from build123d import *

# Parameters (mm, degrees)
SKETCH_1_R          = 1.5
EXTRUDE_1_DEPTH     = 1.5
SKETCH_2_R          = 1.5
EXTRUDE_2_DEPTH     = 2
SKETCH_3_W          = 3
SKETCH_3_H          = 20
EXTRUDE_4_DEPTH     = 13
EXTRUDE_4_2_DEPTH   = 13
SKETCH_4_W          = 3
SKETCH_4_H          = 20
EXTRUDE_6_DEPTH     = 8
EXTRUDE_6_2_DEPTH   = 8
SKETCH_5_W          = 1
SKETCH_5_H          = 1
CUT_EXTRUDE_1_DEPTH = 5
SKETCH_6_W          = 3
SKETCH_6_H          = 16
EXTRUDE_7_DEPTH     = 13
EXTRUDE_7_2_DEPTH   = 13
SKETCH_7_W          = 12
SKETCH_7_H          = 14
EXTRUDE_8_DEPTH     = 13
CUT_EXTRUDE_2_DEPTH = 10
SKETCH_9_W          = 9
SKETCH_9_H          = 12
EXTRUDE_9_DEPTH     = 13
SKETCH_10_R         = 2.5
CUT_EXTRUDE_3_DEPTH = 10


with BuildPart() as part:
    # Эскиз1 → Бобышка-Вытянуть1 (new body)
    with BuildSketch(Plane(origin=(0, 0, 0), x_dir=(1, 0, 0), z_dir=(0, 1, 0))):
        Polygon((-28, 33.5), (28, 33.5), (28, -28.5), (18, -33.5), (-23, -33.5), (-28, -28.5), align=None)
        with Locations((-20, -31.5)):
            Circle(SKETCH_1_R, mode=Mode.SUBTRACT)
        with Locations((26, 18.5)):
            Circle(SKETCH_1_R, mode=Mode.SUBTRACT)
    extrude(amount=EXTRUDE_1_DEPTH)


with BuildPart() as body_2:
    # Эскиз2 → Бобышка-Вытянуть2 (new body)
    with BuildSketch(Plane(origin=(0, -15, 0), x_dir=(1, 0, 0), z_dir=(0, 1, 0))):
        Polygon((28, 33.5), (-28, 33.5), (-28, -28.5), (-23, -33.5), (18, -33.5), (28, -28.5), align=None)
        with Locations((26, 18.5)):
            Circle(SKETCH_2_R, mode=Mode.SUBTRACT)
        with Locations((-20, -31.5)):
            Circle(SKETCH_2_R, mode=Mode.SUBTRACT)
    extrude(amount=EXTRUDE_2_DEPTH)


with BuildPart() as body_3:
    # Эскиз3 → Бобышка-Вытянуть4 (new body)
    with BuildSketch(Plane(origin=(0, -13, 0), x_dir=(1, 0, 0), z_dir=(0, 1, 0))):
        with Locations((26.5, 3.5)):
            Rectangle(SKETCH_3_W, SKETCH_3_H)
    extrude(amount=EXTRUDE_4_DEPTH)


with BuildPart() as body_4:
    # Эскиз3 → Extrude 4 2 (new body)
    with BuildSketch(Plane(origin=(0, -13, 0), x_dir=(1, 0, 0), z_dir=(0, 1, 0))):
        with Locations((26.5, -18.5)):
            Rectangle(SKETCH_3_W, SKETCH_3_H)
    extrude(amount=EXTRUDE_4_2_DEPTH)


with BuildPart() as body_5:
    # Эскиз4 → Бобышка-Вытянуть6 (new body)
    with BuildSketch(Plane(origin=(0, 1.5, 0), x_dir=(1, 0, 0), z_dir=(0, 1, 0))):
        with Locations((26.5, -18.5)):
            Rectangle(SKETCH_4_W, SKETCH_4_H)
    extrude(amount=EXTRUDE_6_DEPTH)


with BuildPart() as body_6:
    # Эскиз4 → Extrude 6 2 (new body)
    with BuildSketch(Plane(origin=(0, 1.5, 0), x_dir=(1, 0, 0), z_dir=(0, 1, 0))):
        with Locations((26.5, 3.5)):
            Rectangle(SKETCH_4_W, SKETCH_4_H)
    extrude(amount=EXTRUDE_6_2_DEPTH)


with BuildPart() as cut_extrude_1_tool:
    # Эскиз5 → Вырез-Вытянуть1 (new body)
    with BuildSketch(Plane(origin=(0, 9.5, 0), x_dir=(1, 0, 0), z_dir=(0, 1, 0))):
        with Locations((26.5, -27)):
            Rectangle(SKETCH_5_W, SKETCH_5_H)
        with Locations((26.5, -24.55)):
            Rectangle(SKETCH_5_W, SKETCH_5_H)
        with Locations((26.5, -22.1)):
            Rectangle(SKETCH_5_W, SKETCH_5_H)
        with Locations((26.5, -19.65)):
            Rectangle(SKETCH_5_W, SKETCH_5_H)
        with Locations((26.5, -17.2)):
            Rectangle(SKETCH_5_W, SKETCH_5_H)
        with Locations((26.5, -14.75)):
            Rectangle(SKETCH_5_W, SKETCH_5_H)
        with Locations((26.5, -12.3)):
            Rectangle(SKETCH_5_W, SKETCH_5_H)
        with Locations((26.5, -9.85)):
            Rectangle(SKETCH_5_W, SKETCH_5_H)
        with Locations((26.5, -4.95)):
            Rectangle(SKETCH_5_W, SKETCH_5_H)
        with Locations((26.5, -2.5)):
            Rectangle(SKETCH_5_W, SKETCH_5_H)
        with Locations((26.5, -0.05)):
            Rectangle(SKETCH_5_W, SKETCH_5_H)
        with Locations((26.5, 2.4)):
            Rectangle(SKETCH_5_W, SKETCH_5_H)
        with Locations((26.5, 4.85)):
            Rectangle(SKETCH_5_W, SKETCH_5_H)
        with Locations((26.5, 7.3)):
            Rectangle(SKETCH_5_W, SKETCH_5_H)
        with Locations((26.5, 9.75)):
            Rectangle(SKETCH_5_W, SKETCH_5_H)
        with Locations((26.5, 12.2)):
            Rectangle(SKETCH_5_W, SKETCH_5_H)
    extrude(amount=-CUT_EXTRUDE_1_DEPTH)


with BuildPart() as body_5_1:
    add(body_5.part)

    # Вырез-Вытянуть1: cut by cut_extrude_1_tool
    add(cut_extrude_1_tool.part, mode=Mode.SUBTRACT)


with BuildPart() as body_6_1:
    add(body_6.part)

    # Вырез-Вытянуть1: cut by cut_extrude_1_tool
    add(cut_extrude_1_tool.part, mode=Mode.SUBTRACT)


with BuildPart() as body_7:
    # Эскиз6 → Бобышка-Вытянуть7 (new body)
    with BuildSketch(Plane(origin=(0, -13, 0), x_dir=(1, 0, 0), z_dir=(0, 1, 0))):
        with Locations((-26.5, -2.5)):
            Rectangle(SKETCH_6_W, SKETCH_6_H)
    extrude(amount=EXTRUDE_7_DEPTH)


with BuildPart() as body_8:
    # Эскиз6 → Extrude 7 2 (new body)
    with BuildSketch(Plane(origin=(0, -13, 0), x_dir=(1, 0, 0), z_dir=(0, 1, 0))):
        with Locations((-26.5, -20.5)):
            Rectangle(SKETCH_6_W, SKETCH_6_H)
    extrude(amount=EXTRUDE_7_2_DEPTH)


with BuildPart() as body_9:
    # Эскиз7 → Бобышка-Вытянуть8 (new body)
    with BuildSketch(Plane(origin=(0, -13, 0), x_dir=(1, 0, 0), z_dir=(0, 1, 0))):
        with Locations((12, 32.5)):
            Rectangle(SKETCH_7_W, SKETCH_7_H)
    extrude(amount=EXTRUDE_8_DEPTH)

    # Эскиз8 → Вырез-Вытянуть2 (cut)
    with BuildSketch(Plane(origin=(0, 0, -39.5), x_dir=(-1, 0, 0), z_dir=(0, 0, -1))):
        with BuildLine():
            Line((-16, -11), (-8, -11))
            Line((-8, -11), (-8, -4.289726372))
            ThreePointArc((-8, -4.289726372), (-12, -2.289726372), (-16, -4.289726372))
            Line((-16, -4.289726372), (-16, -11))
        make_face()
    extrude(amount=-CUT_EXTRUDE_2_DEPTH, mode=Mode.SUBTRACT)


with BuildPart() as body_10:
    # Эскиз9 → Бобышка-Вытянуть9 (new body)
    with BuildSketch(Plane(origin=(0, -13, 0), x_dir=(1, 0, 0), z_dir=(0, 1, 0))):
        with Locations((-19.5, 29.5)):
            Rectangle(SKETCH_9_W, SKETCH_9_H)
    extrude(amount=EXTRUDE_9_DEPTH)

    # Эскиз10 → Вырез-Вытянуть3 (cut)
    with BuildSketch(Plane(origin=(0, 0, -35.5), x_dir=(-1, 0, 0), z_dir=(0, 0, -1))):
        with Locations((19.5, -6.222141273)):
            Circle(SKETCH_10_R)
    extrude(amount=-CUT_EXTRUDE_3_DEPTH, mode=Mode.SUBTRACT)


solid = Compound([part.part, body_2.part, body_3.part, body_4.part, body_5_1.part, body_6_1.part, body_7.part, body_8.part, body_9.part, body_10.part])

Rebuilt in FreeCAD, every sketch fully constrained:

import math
import FreeCAD as App
import Part
import Sketcher
from FreeCAD import Vector
Q = App.Units.Quantity


def add_polygon(sketch, points):
    """Adds a closed chain of lines whose ends are joined by coincident constraints."""
    first, n = sketch.GeometryCount, len(points)
    for a, b in zip(points, points[1:] + points[:1]):
        sketch.addGeometry(Part.LineSegment(App.Vector(*a, 0), App.Vector(*b, 0)), False)
    for i in range(n):
        sketch.addConstraint(Sketcher.Constraint("Coincident", first + i, 2, first + (i + 1) % n, 1))

doc = App.newDocument("Part")
body = doc.addObject("PartDesign::Body", "Body")

sketch1 = body.newObject("Sketcher::SketchObject", "Sketch")
sketch1.AttachmentSupport = (doc.getObject("XZ_Plane"), [""])
sketch1.MapMode = "FlatFace"
add_polygon(sketch1, [(28, -33.5), (-28, -33.5), (-28, 28.5), (-23, 33.5), (18, 33.5), (28, 28.5)])
sketch1.addGeometry(Part.Circle(Vector(-20, 31.5, 0), Vector(0, 0, 1), 1.5), False)
sketch1.addGeometry(Part.Circle(Vector(26, -18.5, 0), Vector(0, 0, 1), 1.5), False)
sketch1.addConstraint([
    Sketcher.Constraint("Horizontal", 0),
    Sketcher.Constraint("Vertical", 1),
    Sketcher.Constraint("Horizontal", 3),
    Sketcher.Constraint("Vertical", 5),
    Sketcher.Constraint("Equal", 6, 7),
    Sketcher.Constraint("Symmetric", 1, 2, 4, 2, -2),
    Sketcher.Constraint("Diameter", 6, Q("3 mm")),
    Sketcher.Constraint("DistanceX", 0, 2, 0, 1, Q("56 mm")),
    Sketcher.Constraint("DistanceX", 3, 1, 3, 2, Q("41 mm")),
    Sketcher.Constraint("DistanceY", 1, 1, 1, 2, Q("62 mm")),
    Sketcher.Constraint("Angle", 2, Q("45 deg")),
    Sketcher.Constraint("DistanceX", 6, 3, -1, 1, Q("20 mm")),
    Sketcher.Constraint("DistanceX", -1, 1, 7, 3, Q("26 mm")),
    Sketcher.Constraint("DistanceX", 2, 2, -1, 1, Q("23 mm")),
    Sketcher.Constraint("DistanceY", 7, 3, 6, 3, Q("50 mm")),
    Sketcher.Constraint("DistanceY", 0, 2, 7, 3, Q("15 mm")),
    Sketcher.Constraint("DistanceY", -1, 1, 6, 3, Q("31.5 mm")),
])
pad1 = body.newObject("PartDesign::Pad", "Pad")
pad1.Profile = sketch1
pad1.Length = 1.5
pad1.Reversed = True
body2 = doc.addObject("PartDesign::Body", "Body001")

sketch2 = body2.newObject("Sketcher::SketchObject", "Sketch001")
sketch2.AttachmentSupport = (doc.getObject("XZ_Plane001"), [""])
sketch2.MapMode = "FlatFace"
sketch2.AttachmentOffset = App.Placement(Vector(0, 0, 15), App.Rotation())
add_polygon(sketch2, [(28, -33.5), (-28, -33.5), (-28, 28.5), (-23, 33.5), (18, 33.5), (28, 28.5)])
sketch2.addGeometry(Part.Circle(Vector(-20, 31.5, 0), Vector(0, 0, 1), 1.5), False)
sketch2.addGeometry(Part.Circle(Vector(26, -18.5, 0), Vector(0, 0, 1), 1.5), False)
sketch2.addConstraint([
    Sketcher.Constraint("Horizontal", 0),
    Sketcher.Constraint("Vertical", 1),
    Sketcher.Constraint("Horizontal", 3),
    Sketcher.Constraint("Vertical", 5),
    Sketcher.Constraint("Equal", 6, 7),
    Sketcher.Constraint("Symmetric", 1, 2, 4, 2, -2),
    Sketcher.Constraint("Diameter", 6, Q("3 mm")),
    Sketcher.Constraint("DistanceX", 0, 2, 0, 1, Q("56 mm")),
    Sketcher.Constraint("DistanceX", 3, 1, 3, 2, Q("41 mm")),
    Sketcher.Constraint("DistanceY", 1, 1, 1, 2, Q("62 mm")),
    Sketcher.Constraint("Angle", 2, Q("45 deg")),
    Sketcher.Constraint("DistanceX", 6, 3, -1, 1, Q("20 mm")),
    Sketcher.Constraint("DistanceX", -1, 1, 7, 3, Q("26 mm")),
    Sketcher.Constraint("DistanceX", 2, 2, -1, 1, Q("23 mm")),
    Sketcher.Constraint("DistanceY", 7, 3, 6, 3, Q("50 mm")),
    Sketcher.Constraint("DistanceY", 0, 2, 7, 3, Q("15 mm")),
    Sketcher.Constraint("DistanceY", -1, 1, 6, 3, Q("31.5 mm")),
])
pad2 = body2.newObject("PartDesign::Pad", "Pad001")
pad2.Profile = sketch2
pad2.Length = 2
pad2.Reversed = True
body3 = doc.addObject("PartDesign::Body", "Body002")

sketch3 = body3.newObject("Sketcher::SketchObject", "Sketch002")
sketch3.AttachmentSupport = (doc.getObject("XZ_Plane002"), [""])
sketch3.MapMode = "FlatFace"
sketch3.AttachmentOffset = App.Placement(Vector(0, 0, 13), App.Rotation())
add_polygon(sketch3, [(25, -13.5), (25, 6.5), (28, 6.5), (28, -13.5)])
sketch3.addConstraint([
    Sketcher.Constraint("Vertical", 0),
    Sketcher.Constraint("Horizontal", 1),
    Sketcher.Constraint("Vertical", 2),
    Sketcher.Constraint("Horizontal", 3),
    Sketcher.Constraint("DistanceX", 1, 1, 1, 2, Q("3 mm")),
    Sketcher.Constraint("DistanceY", 0, 1, 0, 2, Q("20 mm")),
    Sketcher.Constraint("DistanceX", -1, 1, 0, 2, Q("25 mm")),
    Sketcher.Constraint("DistanceY", -1, 1, 0, 2, Q("6.5 mm")),
])
pad3 = body3.newObject("PartDesign::Pad", "Pad002")
pad3.Profile = sketch3
pad3.Length = 13
pad3.Reversed = True
body4 = doc.addObject("PartDesign::Body", "Body003")

sketch4 = body4.newObject("Sketcher::SketchObject", "Sketch003")
sketch4.AttachmentSupport = (doc.getObject("XZ_Plane003"), [""])
sketch4.MapMode = "FlatFace"
sketch4.AttachmentOffset = App.Placement(Vector(0, 0, 13), App.Rotation())
add_polygon(sketch4, [(25, 8.5), (25, 28.5), (28, 28.5), (28, 8.5)])
sketch4.addConstraint([
    Sketcher.Constraint("Vertical", 0),
    Sketcher.Constraint("Horizontal", 1),
    Sketcher.Constraint("Vertical", 2),
    Sketcher.Constraint("Horizontal", 3),
    Sketcher.Constraint("DistanceX", 1, 1, 1, 2, Q("3 mm")),
    Sketcher.Constraint("DistanceY", 0, 1, 0, 2, Q("20 mm")),
    Sketcher.Constraint("DistanceX", -1, 1, 0, 2, Q("25 mm")),
    Sketcher.Constraint("DistanceY", -1, 1, 0, 2, Q("28.5 mm")),
])
pad4 = body4.newObject("PartDesign::Pad", "Pad003")
pad4.Profile = sketch4
pad4.Length = 13
pad4.Reversed = True
body5 = doc.addObject("PartDesign::Body", "Body004")

sketch5 = body5.newObject("Sketcher::SketchObject", "Sketch004")
sketch5.AttachmentSupport = (doc.getObject("XZ_Plane004"), [""])
sketch5.MapMode = "FlatFace"
sketch5.AttachmentOffset = App.Placement(Vector(0, 0, -1.5), App.Rotation())
add_polygon(sketch5, [(25, 8.5), (25, 28.5), (28, 28.5), (28, 8.5)])
sketch5.addConstraint([
    Sketcher.Constraint("Vertical", 0),
    Sketcher.Constraint("Horizontal", 1),
    Sketcher.Constraint("Vertical", 2),
    Sketcher.Constraint("Horizontal", 3),
    Sketcher.Constraint("DistanceX", 1, 1, 1, 2, Q("3 mm")),
    Sketcher.Constraint("DistanceY", 0, 1, 0, 2, Q("20 mm")),
    Sketcher.Constraint("DistanceX", -1, 1, 0, 2, Q("25 mm")),
    Sketcher.Constraint("DistanceY", -1, 1, 0, 2, Q("28.5 mm")),
])
pad5 = body5.newObject("PartDesign::Pad", "Pad004")
pad5.Profile = sketch5
pad5.Length = 8
pad5.Reversed = True
body6 = doc.addObject("PartDesign::Body", "Body005")

sketch6 = body6.newObject("Sketcher::SketchObject", "Sketch005")
sketch6.AttachmentSupport = (doc.getObject("XZ_Plane005"), [""])
sketch6.MapMode = "FlatFace"
sketch6.AttachmentOffset = App.Placement(Vector(0, 0, -1.5), App.Rotation())
add_polygon(sketch6, [(25, -13.5), (25, 6.5), (28, 6.5), (28, -13.5)])
sketch6.addConstraint([
    Sketcher.Constraint("Vertical", 0),
    Sketcher.Constraint("Horizontal", 1),
    Sketcher.Constraint("Vertical", 2),
    Sketcher.Constraint("Horizontal", 3),
    Sketcher.Constraint("DistanceX", 1, 1, 1, 2, Q("3 mm")),
    Sketcher.Constraint("DistanceY", 0, 1, 0, 2, Q("20 mm")),
    Sketcher.Constraint("DistanceX", -1, 1, 0, 2, Q("25 mm")),
    Sketcher.Constraint("DistanceY", -1, 1, 0, 2, Q("6.5 mm")),
])
pad6 = body6.newObject("PartDesign::Pad", "Pad005")
pad6.Profile = sketch6
pad6.Length = 8
pad6.Reversed = True
body7 = doc.addObject("PartDesign::Body", "Body006")
body7.AllowCompound = True

sketch7 = body7.newObject("Sketcher::SketchObject", "Sketch006")
sketch7.AttachmentSupport = (doc.getObject("XZ_Plane006"), [""])
sketch7.MapMode = "FlatFace"
sketch7.AttachmentOffset = App.Placement(Vector(0, 0, -9.5), App.Rotation())
add_polygon(sketch7, [(26, 26.5), (26, 27.5), (27, 27.5), (27, 26.5)])
add_polygon(sketch7, [(26, 24.05), (26, 25.05), (27, 25.05), (27, 24.05)])
add_polygon(sketch7, [(26, 21.6), (26, 22.6), (27, 22.6), (27, 21.6)])
add_polygon(sketch7, [(26, 19.15), (26, 20.15), (27, 20.15), (27, 19.15)])
add_polygon(sketch7, [(26, 16.7), (26, 17.7), (27, 17.7), (27, 16.7)])
add_polygon(sketch7, [(26, 14.25), (26, 15.25), (27, 15.25), (27, 14.25)])
add_polygon(sketch7, [(26, 11.8), (26, 12.8), (27, 12.8), (27, 11.8)])
add_polygon(sketch7, [(26, 9.35), (26, 10.35), (27, 10.35), (27, 9.35)])
add_polygon(sketch7, [(26, 4.45), (26, 5.45), (27, 5.45), (27, 4.45)])
add_polygon(sketch7, [(26, 2), (26, 3), (27, 3), (27, 2)])
add_polygon(sketch7, [(26, -0.45), (26, 0.55), (27, 0.55), (27, -0.45)])
add_polygon(sketch7, [(26, -2.9), (26, -1.9), (27, -1.9), (27, -2.9)])
add_polygon(sketch7, [(26, -5.35), (26, -4.35), (27, -4.35), (27, -5.35)])
add_polygon(sketch7, [(26, -7.8), (26, -6.8), (27, -6.8), (27, -7.8)])
add_polygon(sketch7, [(26, -10.25), (26, -9.25), (27, -9.25), (27, -10.25)])
add_polygon(sketch7, [(26, -12.7), (26, -11.7), (27, -11.7), (27, -12.7)])
sketch7.addConstraint([
    Sketcher.Constraint("Vertical", 0),
    Sketcher.Constraint("Horizontal", 1),
    Sketcher.Constraint("Vertical", 2),
    Sketcher.Constraint("Horizontal", 3),
    Sketcher.Constraint("Vertical", 4),
    Sketcher.Constraint("Horizontal", 5),
    Sketcher.Constraint("Vertical", 6),
    Sketcher.Constraint("Horizontal", 7),
    Sketcher.Constraint("Vertical", 8),
    Sketcher.Constraint("Horizontal", 9),
    Sketcher.Constraint("Vertical", 10),
    Sketcher.Constraint("Horizontal", 11),
    Sketcher.Constraint("Vertical", 12),
    Sketcher.Constraint("Horizontal", 13),
    Sketcher.Constraint("Vertical", 14),
    Sketcher.Constraint("Horizontal", 15),
    Sketcher.Constraint("Vertical", 16),
    Sketcher.Constraint("Horizontal", 17),
    Sketcher.Constraint("Vertical", 18),
    Sketcher.Constraint("Horizontal", 19),
    Sketcher.Constraint("Vertical", 20),
    Sketcher.Constraint("Horizontal", 21),
    Sketcher.Constraint("Vertical", 22),
    Sketcher.Constraint("Horizontal", 23),
    Sketcher.Constraint("Vertical", 24),
    Sketcher.Constraint("Horizontal", 25),
    Sketcher.Constraint("Vertical", 26),
    Sketcher.Constraint("Horizontal", 27),
    Sketcher.Constraint("Vertical", 28),
    Sketcher.Constraint("Horizontal", 29),
    Sketcher.Constraint("Vertical", 30),
    Sketcher.Constraint("Horizontal", 31),
    Sketcher.Constraint("Vertical", 32),
    Sketcher.Constraint("Horizontal", 33),
    Sketcher.Constraint("Vertical", 34),
    Sketcher.Constraint("Horizontal", 35),
    Sketcher.Constraint("Vertical", 36),
    Sketcher.Constraint("Horizontal", 37),
    Sketcher.Constraint("Vertical", 38),
    Sketcher.Constraint("Horizontal", 39),
    Sketcher.Constraint("Vertical", 40),
    Sketcher.Constraint("Horizontal", 41),
    Sketcher.Constraint("Vertical", 42),
    Sketcher.Constraint("Horizontal", 43),
    Sketcher.Constraint("Vertical", 44),
    Sketcher.Constraint("Horizontal", 45),
    Sketcher.Constraint("Vertical", 46),
    Sketcher.Constraint("Horizontal", 47),
    Sketcher.Constraint("Vertical", 48),
    Sketcher.Constraint("Horizontal", 49),
    Sketcher.Constraint("Vertical", 50),
    Sketcher.Constraint("Horizontal", 51),
    Sketcher.Constraint("Vertical", 52),
    Sketcher.Constraint("Horizontal", 53),
    Sketcher.Constraint("Vertical", 54),
    Sketcher.Constraint("Horizontal", 55),
    Sketcher.Constraint("Vertical", 56),
    Sketcher.Constraint("Horizontal", 57),
    Sketcher.Constraint("Vertical", 58),
    Sketcher.Constraint("Horizontal", 59),
    Sketcher.Constraint("Vertical", 60),
    Sketcher.Constraint("Horizontal", 61),
    Sketcher.Constraint("Vertical", 62),
    Sketcher.Constraint("Horizontal", 63),
    Sketcher.Constraint("Vertical", 3, 2, 4, 2),
    Sketcher.Constraint("Vertical", 2, 2, 5, 2),
    Sketcher.Constraint("Vertical", 7, 2, 8, 2),
    Sketcher.Constraint("Vertical", 6, 2, 9, 2),
    Sketcher.Constraint("Vertical", 11, 2, 12, 2),
    Sketcher.Constraint("Vertical", 10, 2, 13, 2),
    Sketcher.Constraint("Vertical", 15, 2, 16, 2),
    Sketcher.Constraint("Vertical", 14, 2, 17, 2),
    Sketcher.Constraint("Vertical", 19, 2, 20, 2),
    Sketcher.Constraint("Vertical", 18, 2, 21, 2),
    Sketcher.Constraint("Vertical", 23, 2, 24, 2),
    Sketcher.Constraint("Vertical", 22, 2, 25, 2),
    Sketcher.Constraint("Vertical", 27, 2, 28, 2),
    Sketcher.Constraint("Vertical", 26, 2, 29, 2),
    Sketcher.Constraint("Vertical", 31, 2, 32, 2),
    Sketcher.Constraint("Vertical", 30, 2, 33, 2),
    Sketcher.Constraint("Vertical", 35, 2, 36, 2),
    Sketcher.Constraint("Vertical", 34, 2, 37, 2),
    Sketcher.Constraint("Vertical", 39, 2, 40, 2),
    Sketcher.Constraint("Vertical", 38, 2, 41, 2),
    Sketcher.Constraint("Vertical", 43, 2, 44, 2),
    Sketcher.Constraint("Vertical", 42, 2, 45, 2),
    Sketcher.Constraint("Vertical", 47, 2, 48, 2),
    Sketcher.Constraint("Vertical", 46, 2, 49, 2),
    Sketcher.Constraint("Vertical", 51, 2, 52, 2),
    Sketcher.Constraint("Vertical", 50, 2, 53, 2),
    Sketcher.Constraint("Vertical", 55, 2, 56, 2),
    Sketcher.Constraint("Vertical", 54, 2, 57, 2),
    Sketcher.Constraint("Vertical", 59, 2, 60, 2),
    Sketcher.Constraint("Vertical", 58, 2, 61, 2),
    Sketcher.Constraint("Equal", 63, 0),
    Sketcher.Constraint("Equal", 2, 4),
    Sketcher.Constraint("Equal", 6, 8),
    Sketcher.Constraint("Equal", 10, 12),
    Sketcher.Constraint("Equal", 14, 16),
    Sketcher.Constraint("Equal", 18, 20),
    Sketcher.Constraint("Equal", 22, 24),
    Sketcher.Constraint("Equal", 26, 28),
    Sketcher.Constraint("Equal", 30, 32),
    Sketcher.Constraint("Equal", 34, 36),
    Sketcher.Constraint("Equal", 38, 40),
    Sketcher.Constraint("Equal", 42, 44),
    Sketcher.Constraint("Equal", 46, 48),
    Sketcher.Constraint("Equal", 50, 52),
    Sketcher.Constraint("Equal", 54, 56),
    Sketcher.Constraint("Equal", 58, 60),
    Sketcher.Constraint("DistanceX", 1, 1, 1, 2, Q("1 mm")),
    Sketcher.Constraint("DistanceX", -1, 1, 0, 2, Q("26 mm")),
    Sketcher.Constraint("DistanceY", -1, 1, 36, 2, Q("3 mm")),
    Sketcher.Constraint("DistanceY", -1, 1, 0, 2, Q("27.5 mm")),
    Sketcher.Constraint("DistanceY", -1, 1, 8, 2, Q("22.6 mm")),
    Sketcher.Constraint("DistanceY", -1, 1, 16, 2, Q("17.7 mm")),
    Sketcher.Constraint("DistanceY", -1, 1, 24, 2, Q("12.8 mm")),
    Sketcher.Constraint("DistanceY", 44, 2, -1, 1, Q("1.9 mm")),
    Sketcher.Constraint("DistanceY", 52, 2, -1, 1, Q("6.8 mm")),
    Sketcher.Constraint("DistanceY", 60, 2, -1, 1, Q("11.7 mm")),
    Sketcher.Constraint("DistanceY", -1, 1, 4, 2, Q("25.05 mm")),
    Sketcher.Constraint("DistanceY", -1, 1, 12, 2, Q("20.15 mm")),
    Sketcher.Constraint("DistanceY", -1, 1, 20, 2, Q("15.25 mm")),
    Sketcher.Constraint("DistanceY", -1, 1, 28, 2, Q("10.35 mm")),
    Sketcher.Constraint("DistanceY", -1, 1, 32, 2, Q("5.45 mm")),
    Sketcher.Constraint("DistanceY", -1, 1, 40, 2, Q("0.55 mm")),
    Sketcher.Constraint("DistanceY", 48, 2, -1, 1, Q("4.35 mm")),
    Sketcher.Constraint("DistanceY", 56, 2, -1, 1, Q("9.25 mm")),
])
pad7 = body7.newObject("PartDesign::Pad", "Pad006")
pad7.Profile = sketch7
pad7.Length = 5
doc.recompute()

body8 = doc.addObject("PartDesign::Body", "Body007")
body8.BaseFeature = body7
boolean = body5.newObject("PartDesign::Boolean", "Boolean")
boolean.Type = "Cut"
boolean.addObjects([body8])
doc.recompute()

boolean2 = body6.newObject("PartDesign::Boolean", "Boolean001")
boolean2.Type = "Cut"
boolean2.addObjects([body7])
body9 = doc.addObject("PartDesign::Body", "Body008")

sketch8 = body9.newObject("Sketcher::SketchObject", "Sketch007")
sketch8.AttachmentSupport = (doc.getObject("XZ_Plane008"), [""])
sketch8.MapMode = "FlatFace"
sketch8.AttachmentOffset = App.Placement(Vector(0, 0, 13), App.Rotation())
add_polygon(sketch8, [(-28, -5.5), (-28, 10.5), (-25, 10.5), (-25, -5.5)])
sketch8.addConstraint([
    Sketcher.Constraint("Vertical", 0),
    Sketcher.Constraint("Horizontal", 1),
    Sketcher.Constraint("Vertical", 2),
    Sketcher.Constraint("Horizontal", 3),
    Sketcher.Constraint("DistanceX", 1, 1, 1, 2, Q("3 mm")),
    Sketcher.Constraint("DistanceY", 0, 1, 0, 2, Q("16 mm")),
    Sketcher.Constraint("DistanceX", 0, 2, -1, 1, Q("28 mm")),
    Sketcher.Constraint("DistanceY", -1, 1, 0, 2, Q("10.5 mm")),
])
pad8 = body9.newObject("PartDesign::Pad", "Pad007")
pad8.Profile = sketch8
pad8.Length = 13
pad8.Reversed = True
body10 = doc.addObject("PartDesign::Body", "Body009")

sketch9 = body10.newObject("Sketcher::SketchObject", "Sketch008")
sketch9.AttachmentSupport = (doc.getObject("XZ_Plane009"), [""])
sketch9.MapMode = "FlatFace"
sketch9.AttachmentOffset = App.Placement(Vector(0, 0, 13), App.Rotation())
add_polygon(sketch9, [(-28, 12.5), (-28, 28.5), (-25, 28.5), (-25, 12.5)])
sketch9.addConstraint([
    Sketcher.Constraint("Vertical", 0),
    Sketcher.Constraint("Horizontal", 1),
    Sketcher.Constraint("Vertical", 2),
    Sketcher.Constraint("Horizontal", 3),
    Sketcher.Constraint("DistanceX", 1, 1, 1, 2, Q("3 mm")),
    Sketcher.Constraint("DistanceY", 0, 1, 0, 2, Q("16 mm")),
    Sketcher.Constraint("DistanceX", 0, 2, -1, 1, Q("28 mm")),
    Sketcher.Constraint("DistanceY", -1, 1, 0, 2, Q("28.5 mm")),
])
pad9 = body10.newObject("PartDesign::Pad", "Pad008")
pad9.Profile = sketch9
pad9.Length = 13
pad9.Reversed = True
body11 = doc.addObject("PartDesign::Body", "Body010")

sketch10 = body11.newObject("Sketcher::SketchObject", "Sketch009")
sketch10.AttachmentSupport = (doc.getObject("XZ_Plane010"), [""])
sketch10.MapMode = "FlatFace"
sketch10.AttachmentOffset = App.Placement(Vector(0, 0, 13), App.Rotation())
add_polygon(sketch10, [(6, -39.5), (6, -25.5), (18, -25.5), (18, -39.5)])
sketch10.addConstraint([
    Sketcher.Constraint("Vertical", 0),
    Sketcher.Constraint("Horizontal", 1),
    Sketcher.Constraint("Vertical", 2),
    Sketcher.Constraint("Horizontal", 3),
    Sketcher.Constraint("DistanceX", 1, 1, 1, 2, Q("12 mm")),
    Sketcher.Constraint("DistanceY", 0, 1, 0, 2, Q("14 mm")),
    Sketcher.Constraint("DistanceX", -1, 1, 0, 2, Q("6 mm")),
    Sketcher.Constraint("DistanceY", 0, 2, -1, 1, Q("25.5 mm")),
])
pad10 = body11.newObject("PartDesign::Pad", "Pad009")
pad10.Profile = sketch10
pad10.Length = 13
pad10.Reversed = True

sketch11 = body11.newObject("Sketcher::SketchObject", "Sketch010")
sketch11.AttachmentSupport = (doc.getObject("XY_Plane010"), [""])
sketch11.MapMode = "FlatFace"
sketch11.AttachmentOffset = App.Placement(Vector(0, 0, -39.5), App.Rotation())
sketch11.addGeometry([
    Part.LineSegment(Vector(16, -11, 0), Vector(8, -11, 0)),
    Part.LineSegment(Vector(8, -11, 0), Vector(8, -4.289726, 0)),
    Part.ArcOfCircle(Part.Circle(Vector(12, -7.289726, 0), Vector(0, 0, 1), 5), math.radians(36.869898), math.radians(143.130102)),
    Part.LineSegment(Vector(16, -4.289726, 0), Vector(16, -11, 0)),
], False)
sketch11.addConstraint([
    Sketcher.Constraint("Coincident", 0, 2, 1, 1),
    Sketcher.Constraint("Coincident", 1, 2, 2, 2),
    Sketcher.Constraint("Coincident", 2, 1, 3, 1),
    Sketcher.Constraint("Coincident", 3, 2, 0, 1),
    Sketcher.Constraint("Horizontal", 0),
    Sketcher.Constraint("Vertical", 1),
    Sketcher.Constraint("Vertical", 3),
    Sketcher.Constraint("Horizontal", 1, 2, 2, 1),
    Sketcher.Constraint("Radius", 2, Q("5 mm")),
    Sketcher.Constraint("DistanceX", 0, 2, 0, 1, Q("8 mm")),
    Sketcher.Constraint("DistanceX", -1, 1, 2, 3, Q("12 mm")),
    Sketcher.Constraint("DistanceY", 0, 2, -1, 1, Q("11 mm")),
    Sketcher.Constraint("DistanceY", 1, 1, 1, 2, Q("6.710274 mm")),
])
pocket1 = body11.newObject("PartDesign::Pocket", "Pocket")
pocket1.Profile = sketch11
pocket1.Length = 10
pocket1.Reversed = True
body12 = doc.addObject("PartDesign::Body", "Body011")

sketch12 = body12.newObject("Sketcher::SketchObject", "Sketch011")
sketch12.AttachmentSupport = (doc.getObject("XZ_Plane011"), [""])
sketch12.MapMode = "FlatFace"
sketch12.AttachmentOffset = App.Placement(Vector(0, 0, 13), App.Rotation())
add_polygon(sketch12, [(-24, -35.5), (-24, -23.5), (-15, -23.5), (-15, -35.5)])
sketch12.addConstraint([
    Sketcher.Constraint("Vertical", 0),
    Sketcher.Constraint("Horizontal", 1),
    Sketcher.Constraint("Vertical", 2),
    Sketcher.Constraint("Horizontal", 3),
    Sketcher.Constraint("DistanceX", 1, 1, 1, 2, Q("9 mm")),
    Sketcher.Constraint("DistanceY", 0, 1, 0, 2, Q("12 mm")),
    Sketcher.Constraint("DistanceX", 0, 2, -1, 1, Q("24 mm")),
    Sketcher.Constraint("DistanceY", 0, 2, -1, 1, Q("23.5 mm")),
])
pad11 = body12.newObject("PartDesign::Pad", "Pad010")
pad11.Profile = sketch12
pad11.Length = 13
pad11.Reversed = True

sketch13 = body12.newObject("Sketcher::SketchObject", "Sketch012")
sketch13.AttachmentSupport = (doc.getObject("XY_Plane011"), [""])
sketch13.MapMode = "FlatFace"
sketch13.AttachmentOffset = App.Placement(Vector(0, 0, -35.5), App.Rotation())
sketch13.addGeometry(Part.Circle(Vector(-19.5, -6.222141, 0), Vector(0, 0, 1), 2.5), False)
sketch13.addConstraint([
    Sketcher.Constraint("Diameter", 0, Q("5 mm")),
    Sketcher.Constraint("DistanceX", 0, 3, -1, 1, Q("19.5 mm")),
    Sketcher.Constraint("DistanceY", 0, 3, -1, 1, Q("6.222141 mm")),
])
pocket2 = body12.newObject("PartDesign::Pocket", "Pocket001")
pocket2.Profile = sketch13
pocket2.Length = 10
pocket2.Reversed = True

doc.recompute()
